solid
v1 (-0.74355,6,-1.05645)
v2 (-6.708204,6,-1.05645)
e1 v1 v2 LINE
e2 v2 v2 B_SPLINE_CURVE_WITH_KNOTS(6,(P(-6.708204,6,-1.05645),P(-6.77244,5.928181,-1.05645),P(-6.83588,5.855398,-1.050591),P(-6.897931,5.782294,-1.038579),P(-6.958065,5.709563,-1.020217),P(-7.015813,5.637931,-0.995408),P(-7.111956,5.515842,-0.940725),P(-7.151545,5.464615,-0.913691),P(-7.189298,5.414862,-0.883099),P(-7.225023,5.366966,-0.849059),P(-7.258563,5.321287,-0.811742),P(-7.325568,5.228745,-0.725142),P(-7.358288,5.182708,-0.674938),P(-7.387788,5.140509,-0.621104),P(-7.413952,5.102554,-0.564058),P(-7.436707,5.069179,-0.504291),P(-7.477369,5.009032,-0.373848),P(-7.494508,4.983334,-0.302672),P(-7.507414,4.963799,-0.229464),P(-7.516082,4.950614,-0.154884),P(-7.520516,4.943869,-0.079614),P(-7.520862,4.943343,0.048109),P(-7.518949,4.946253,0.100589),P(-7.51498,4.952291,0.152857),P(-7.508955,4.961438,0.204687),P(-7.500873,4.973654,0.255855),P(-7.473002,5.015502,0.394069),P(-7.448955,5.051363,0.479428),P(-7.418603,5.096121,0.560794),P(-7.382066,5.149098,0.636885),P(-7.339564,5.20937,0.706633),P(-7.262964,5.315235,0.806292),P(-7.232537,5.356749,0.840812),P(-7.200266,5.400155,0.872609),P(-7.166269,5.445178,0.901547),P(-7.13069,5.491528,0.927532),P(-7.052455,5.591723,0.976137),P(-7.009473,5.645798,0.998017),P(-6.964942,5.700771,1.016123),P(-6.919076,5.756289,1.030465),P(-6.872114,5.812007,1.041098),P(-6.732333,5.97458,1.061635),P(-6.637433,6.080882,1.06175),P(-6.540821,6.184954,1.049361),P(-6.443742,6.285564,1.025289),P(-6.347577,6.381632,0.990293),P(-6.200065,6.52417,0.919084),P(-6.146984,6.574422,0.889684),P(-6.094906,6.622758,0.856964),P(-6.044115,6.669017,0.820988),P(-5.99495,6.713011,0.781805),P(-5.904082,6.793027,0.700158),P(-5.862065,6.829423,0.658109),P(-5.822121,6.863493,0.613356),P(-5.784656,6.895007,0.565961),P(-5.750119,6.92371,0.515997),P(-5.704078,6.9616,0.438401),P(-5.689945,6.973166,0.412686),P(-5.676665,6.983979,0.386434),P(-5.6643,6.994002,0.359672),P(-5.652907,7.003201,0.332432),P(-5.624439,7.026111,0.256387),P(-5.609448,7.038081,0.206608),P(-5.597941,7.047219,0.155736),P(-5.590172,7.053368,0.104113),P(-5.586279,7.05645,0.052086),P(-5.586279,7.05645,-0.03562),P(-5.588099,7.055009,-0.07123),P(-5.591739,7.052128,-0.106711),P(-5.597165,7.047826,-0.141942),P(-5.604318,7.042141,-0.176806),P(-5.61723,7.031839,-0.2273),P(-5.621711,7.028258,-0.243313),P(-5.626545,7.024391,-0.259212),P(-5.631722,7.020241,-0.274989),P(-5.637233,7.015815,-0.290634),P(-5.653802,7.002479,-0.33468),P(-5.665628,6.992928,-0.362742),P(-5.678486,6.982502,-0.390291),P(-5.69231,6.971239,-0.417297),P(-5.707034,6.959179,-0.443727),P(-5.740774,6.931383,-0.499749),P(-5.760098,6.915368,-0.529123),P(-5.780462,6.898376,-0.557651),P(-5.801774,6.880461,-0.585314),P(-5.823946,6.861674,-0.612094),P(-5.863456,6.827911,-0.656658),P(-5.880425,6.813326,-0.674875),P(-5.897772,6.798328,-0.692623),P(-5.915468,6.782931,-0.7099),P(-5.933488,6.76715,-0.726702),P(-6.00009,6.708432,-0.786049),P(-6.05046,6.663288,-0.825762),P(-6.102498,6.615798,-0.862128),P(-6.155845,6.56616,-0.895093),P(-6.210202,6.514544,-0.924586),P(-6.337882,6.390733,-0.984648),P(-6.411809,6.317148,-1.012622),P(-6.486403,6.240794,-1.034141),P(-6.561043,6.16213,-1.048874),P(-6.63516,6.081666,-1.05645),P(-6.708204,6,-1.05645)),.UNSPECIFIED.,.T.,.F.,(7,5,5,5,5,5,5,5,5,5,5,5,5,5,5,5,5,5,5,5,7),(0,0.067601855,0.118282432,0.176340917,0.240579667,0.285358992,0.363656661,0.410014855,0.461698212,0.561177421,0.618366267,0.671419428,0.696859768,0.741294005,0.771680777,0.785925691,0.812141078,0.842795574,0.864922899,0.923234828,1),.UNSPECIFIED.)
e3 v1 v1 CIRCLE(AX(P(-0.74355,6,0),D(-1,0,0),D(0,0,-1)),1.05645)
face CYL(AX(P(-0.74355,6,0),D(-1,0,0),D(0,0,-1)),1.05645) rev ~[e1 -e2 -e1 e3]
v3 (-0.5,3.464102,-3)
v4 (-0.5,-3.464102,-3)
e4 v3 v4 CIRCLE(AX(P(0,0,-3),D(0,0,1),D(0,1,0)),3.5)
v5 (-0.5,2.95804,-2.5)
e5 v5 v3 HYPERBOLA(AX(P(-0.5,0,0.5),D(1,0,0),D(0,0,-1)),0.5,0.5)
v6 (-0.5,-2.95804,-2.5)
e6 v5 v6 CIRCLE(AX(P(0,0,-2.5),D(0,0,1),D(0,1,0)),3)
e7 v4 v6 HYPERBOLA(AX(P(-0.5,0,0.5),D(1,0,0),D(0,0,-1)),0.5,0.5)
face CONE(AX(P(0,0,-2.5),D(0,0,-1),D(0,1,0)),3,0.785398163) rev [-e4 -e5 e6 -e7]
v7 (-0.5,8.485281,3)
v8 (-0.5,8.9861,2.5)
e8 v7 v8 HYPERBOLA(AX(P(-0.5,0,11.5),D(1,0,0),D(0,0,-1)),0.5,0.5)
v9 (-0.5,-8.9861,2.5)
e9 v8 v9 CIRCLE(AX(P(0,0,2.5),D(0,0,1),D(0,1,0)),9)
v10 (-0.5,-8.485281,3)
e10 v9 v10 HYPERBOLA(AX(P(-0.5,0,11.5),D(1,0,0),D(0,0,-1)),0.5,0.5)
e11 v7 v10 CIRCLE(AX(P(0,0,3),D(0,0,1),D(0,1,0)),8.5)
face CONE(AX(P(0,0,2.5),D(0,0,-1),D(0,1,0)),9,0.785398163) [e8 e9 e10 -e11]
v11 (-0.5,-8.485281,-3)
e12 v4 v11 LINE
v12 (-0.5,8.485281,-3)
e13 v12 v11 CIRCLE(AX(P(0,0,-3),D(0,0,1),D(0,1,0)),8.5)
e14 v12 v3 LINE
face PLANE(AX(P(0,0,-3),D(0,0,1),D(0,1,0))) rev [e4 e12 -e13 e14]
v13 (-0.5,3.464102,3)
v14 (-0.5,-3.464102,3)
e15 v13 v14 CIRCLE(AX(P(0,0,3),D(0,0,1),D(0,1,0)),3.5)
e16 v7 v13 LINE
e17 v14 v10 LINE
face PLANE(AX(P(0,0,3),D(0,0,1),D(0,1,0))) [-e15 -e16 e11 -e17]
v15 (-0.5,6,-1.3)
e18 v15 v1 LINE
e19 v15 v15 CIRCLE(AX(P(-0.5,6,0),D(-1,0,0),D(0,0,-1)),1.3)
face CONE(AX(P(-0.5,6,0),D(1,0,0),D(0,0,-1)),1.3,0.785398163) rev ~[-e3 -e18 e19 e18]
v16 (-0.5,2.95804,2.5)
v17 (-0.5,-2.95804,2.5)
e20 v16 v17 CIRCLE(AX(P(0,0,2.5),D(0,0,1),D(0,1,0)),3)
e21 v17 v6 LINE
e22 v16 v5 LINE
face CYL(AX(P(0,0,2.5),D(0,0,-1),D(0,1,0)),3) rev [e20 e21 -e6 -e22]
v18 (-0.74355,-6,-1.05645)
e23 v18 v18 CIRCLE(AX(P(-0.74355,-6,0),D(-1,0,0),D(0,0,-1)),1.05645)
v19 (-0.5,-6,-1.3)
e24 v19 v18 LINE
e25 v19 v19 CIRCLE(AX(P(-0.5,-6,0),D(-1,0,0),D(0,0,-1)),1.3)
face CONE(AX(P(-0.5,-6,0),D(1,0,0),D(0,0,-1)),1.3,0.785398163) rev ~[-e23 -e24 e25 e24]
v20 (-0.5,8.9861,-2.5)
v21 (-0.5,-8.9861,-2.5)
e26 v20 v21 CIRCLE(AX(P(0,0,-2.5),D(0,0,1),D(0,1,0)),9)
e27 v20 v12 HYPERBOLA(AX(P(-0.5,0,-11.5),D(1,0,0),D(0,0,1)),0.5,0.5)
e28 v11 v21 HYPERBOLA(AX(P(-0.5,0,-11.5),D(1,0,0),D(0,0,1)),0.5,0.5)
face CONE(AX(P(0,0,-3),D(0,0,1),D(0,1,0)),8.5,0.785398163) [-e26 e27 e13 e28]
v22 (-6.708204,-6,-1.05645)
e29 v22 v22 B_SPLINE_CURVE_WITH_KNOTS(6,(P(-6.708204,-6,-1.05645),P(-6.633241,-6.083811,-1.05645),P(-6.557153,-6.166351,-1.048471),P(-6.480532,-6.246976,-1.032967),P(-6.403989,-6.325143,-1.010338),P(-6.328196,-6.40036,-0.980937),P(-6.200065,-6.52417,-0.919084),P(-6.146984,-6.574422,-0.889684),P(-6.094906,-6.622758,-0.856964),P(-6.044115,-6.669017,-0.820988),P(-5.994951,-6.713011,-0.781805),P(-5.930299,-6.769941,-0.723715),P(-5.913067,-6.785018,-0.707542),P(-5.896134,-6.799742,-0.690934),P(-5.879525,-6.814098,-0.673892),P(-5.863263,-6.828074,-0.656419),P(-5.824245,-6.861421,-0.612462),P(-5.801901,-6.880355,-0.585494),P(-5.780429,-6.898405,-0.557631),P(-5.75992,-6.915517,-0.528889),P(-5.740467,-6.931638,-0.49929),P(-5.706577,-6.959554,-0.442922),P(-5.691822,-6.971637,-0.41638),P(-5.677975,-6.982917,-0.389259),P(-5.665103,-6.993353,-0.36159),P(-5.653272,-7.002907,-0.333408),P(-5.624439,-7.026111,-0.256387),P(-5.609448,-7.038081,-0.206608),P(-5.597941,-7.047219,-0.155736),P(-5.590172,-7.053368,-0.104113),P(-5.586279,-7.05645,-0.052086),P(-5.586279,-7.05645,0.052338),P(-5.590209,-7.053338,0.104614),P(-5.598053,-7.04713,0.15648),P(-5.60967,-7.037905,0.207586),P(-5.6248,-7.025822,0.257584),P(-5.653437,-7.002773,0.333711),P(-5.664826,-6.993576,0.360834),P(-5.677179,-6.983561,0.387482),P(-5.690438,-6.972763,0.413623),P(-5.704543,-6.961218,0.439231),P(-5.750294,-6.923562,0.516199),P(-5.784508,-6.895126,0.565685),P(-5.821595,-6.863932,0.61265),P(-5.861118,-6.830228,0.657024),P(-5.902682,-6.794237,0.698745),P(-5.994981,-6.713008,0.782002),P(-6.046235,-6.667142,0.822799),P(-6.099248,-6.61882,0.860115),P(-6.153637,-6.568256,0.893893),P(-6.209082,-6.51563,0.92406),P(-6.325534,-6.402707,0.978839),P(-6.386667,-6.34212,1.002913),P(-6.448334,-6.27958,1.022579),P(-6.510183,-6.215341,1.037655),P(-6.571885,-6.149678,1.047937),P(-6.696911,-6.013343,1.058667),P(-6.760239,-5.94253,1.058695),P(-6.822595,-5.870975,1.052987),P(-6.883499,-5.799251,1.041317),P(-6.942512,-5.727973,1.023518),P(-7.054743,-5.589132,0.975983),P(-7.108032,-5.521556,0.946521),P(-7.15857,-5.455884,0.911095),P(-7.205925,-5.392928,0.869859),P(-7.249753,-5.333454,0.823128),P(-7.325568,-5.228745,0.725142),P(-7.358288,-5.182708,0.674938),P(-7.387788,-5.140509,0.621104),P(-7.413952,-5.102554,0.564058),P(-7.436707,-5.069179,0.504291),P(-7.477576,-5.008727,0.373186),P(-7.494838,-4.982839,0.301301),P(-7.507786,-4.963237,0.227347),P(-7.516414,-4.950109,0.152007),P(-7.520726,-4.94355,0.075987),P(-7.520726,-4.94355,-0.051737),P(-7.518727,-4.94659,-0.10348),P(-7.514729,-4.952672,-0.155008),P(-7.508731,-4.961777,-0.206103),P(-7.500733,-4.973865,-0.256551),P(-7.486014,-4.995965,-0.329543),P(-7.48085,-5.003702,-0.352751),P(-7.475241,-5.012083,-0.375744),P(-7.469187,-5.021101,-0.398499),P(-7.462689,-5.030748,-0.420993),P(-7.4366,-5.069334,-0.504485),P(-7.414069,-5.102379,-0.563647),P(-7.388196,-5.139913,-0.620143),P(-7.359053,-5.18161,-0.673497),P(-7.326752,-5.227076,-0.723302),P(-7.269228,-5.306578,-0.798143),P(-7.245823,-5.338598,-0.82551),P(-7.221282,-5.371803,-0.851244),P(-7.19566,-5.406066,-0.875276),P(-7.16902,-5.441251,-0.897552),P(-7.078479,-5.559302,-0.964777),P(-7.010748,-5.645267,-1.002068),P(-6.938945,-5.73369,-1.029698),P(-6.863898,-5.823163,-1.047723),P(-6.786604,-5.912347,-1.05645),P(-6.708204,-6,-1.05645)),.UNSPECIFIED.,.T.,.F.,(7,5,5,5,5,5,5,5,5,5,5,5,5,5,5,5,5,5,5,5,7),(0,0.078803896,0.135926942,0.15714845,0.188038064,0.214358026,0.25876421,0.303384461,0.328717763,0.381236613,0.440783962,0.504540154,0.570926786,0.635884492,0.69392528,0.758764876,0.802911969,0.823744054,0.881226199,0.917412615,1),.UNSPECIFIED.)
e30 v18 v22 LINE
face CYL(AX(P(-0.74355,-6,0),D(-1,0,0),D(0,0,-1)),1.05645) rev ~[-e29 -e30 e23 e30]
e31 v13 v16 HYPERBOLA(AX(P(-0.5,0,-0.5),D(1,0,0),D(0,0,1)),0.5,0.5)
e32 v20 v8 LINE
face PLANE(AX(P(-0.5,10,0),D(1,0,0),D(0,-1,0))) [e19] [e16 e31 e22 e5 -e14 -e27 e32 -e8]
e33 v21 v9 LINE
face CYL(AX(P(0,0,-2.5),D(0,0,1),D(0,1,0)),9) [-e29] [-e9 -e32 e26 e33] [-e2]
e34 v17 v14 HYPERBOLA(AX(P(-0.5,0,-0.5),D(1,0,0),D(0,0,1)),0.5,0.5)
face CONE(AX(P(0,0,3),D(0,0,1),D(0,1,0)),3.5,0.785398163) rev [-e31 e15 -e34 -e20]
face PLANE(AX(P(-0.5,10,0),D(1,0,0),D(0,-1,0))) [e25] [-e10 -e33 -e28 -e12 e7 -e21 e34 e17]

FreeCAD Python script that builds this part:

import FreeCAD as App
import Part
import Sketcher

V = App.Vector
Q = App.Units.Quantity

doc = App.newDocument("Part")
params = doc.addObject("Spreadsheet::Sheet", "Params")
for row, (alias, value) in enumerate([
    ("sketch1_width", "5 mm"),
    ("revolution_angle", "180 deg"),
    ("sketch2_width", "1 mm"),
    ("sketch2_height", "20 mm"),
    ("pocket1_length", "6 mm"),
    ("hole_diameter", "2.1129 mm"),
    ("hole_depth", "9 mm"),
    ("hole_csink_diameter", "2.6 mm"),
    ("hole2_diameter", "2.1129 mm"),
    ("hole2_depth", "9 mm"),
    ("hole2_csink_diameter", "2.6 mm"),
], start=1):
    params.set(f"A{row}", alias)
    params.set(f"B{row}", "=" + value)
    params.setAlias(f"B{row}", alias)

body = doc.addObject("PartDesign::Body", "Body")

# Sketch on YZ plane
sketch1 = body.newObject("Sketcher::SketchObject", "Sketch")
sketch1.AttachmentSupport = (doc.getObject("YZ_Plane"), [""])
sketch1.MapMode = "FlatFace"
sketch1.addGeometry([
    Part.LineSegment(V(9, 2.5, 0), V(8.5, 3, 0)),  # 0
    Part.LineSegment(V(8.5, 3, 0), V(3.5, 3, 0)),  # 1
    Part.LineSegment(V(3.5, 3, 0), V(3, 2.5, 0)),  # 2
    Part.LineSegment(V(3, 2.5, 0), V(3, -2.5, 0)),  # 3
    Part.LineSegment(V(3, -2.5, 0), V(3.5, -3, 0)),  # 4
    Part.LineSegment(V(3.5, -3, 0), V(8.5, -3, 0)),  # 5
    Part.LineSegment(V(8.5, -3, 0), V(9, -2.5, 0)),  # 6
    Part.LineSegment(V(9, -2.5, 0), V(9, 2.5, 0)),  # 7
], False)
sketch1.addConstraint([
    Sketcher.Constraint("Coincident", 0, 2, 1, 1),
    Sketcher.Constraint("Coincident", 1, 2, 2, 1),
    Sketcher.Constraint("Coincident", 2, 2, 3, 1),
    Sketcher.Constraint("Coincident", 3, 2, 4, 1),
    Sketcher.Constraint("Coincident", 4, 2, 5, 1),
    Sketcher.Constraint("Coincident", 5, 2, 6, 1),
    Sketcher.Constraint("Coincident", 6, 2, 7, 1),
    Sketcher.Constraint("Coincident", 7, 2, 0, 1),
    Sketcher.Constraint("Horizontal", 1),
    Sketcher.Constraint("Vertical", 3),
    Sketcher.Constraint("Horizontal", 5),
    Sketcher.Constraint("Vertical", 7),
    Sketcher.Constraint("Symmetric", 1, 2, 4, 2, -1),
    Sketcher.Constraint("Perpendicular", 0, 2),
    Sketcher.Constraint("Perpendicular", 2, 4),
    Sketcher.Constraint("Perpendicular", 4, 6),
    Sketcher.Constraint("Horizontal", 3, 2, 6, 2),
    Sketcher.Constraint("Horizontal", 2, 2, 7, 2),
    Sketcher.Constraint("Vertical", 0, 2, 5, 2),
    Sketcher.Constraint("Equal", 5, 3),
    Sketcher.Constraint("DistanceX", 1, 2, 1, 1, Q("5 mm")),
    Sketcher.Constraint("DistanceY", -1, 1, 0, 2, Q("3 mm")),
    Sketcher.Constraint("DistanceX", -1, 1, 2, 2, Q("3 mm")),
])
sketch1.setExpression("Constraints[20]", "Params.sketch1_width")
revolution = body.newObject("PartDesign::Revolution", "Revolution")
revolution.Profile = sketch1
revolution.ReferenceAxis = (sketch1, ["V_Axis"])
revolution.setExpression("Angle", "Params.revolution_angle")

# Sketch on XY plane
sketch2 = body.newObject("Sketcher::SketchObject", "Sketch001")
sketch2.AttachmentSupport = (doc.getObject("XY_Plane"), [""])
sketch2.MapMode = "FlatFace"
sketch2.addGeometry([
    Part.LineSegment(V(-0.5, 10, 0), V(-0.5, -10, 0)),
    Part.LineSegment(V(-0.5, -10, 0), V(0.5, -10, 0)),
    Part.LineSegment(V(0.5, -10, 0), V(0.5, 10, 0)),
    Part.LineSegment(V(0.5, 10, 0), V(-0.5, 10, 0)),
], False)
sketch2.addConstraint([
    Sketcher.Constraint("Coincident", 0, 2, 1, 1),
    Sketcher.Constraint("Coincident", 1, 2, 2, 1),
    Sketcher.Constraint("Coincident", 2, 2, 3, 1),
    Sketcher.Constraint("Coincident", 3, 2, 0, 1),
    Sketcher.Constraint("Vertical", 0),
    Sketcher.Constraint("Horizontal", 1),
    Sketcher.Constraint("Vertical", 2),
    Sketcher.Constraint("Horizontal", 3),
    Sketcher.Constraint("Symmetric", 0, 2, 2, 2, -1, 1),
    Sketcher.Constraint("DistanceX", 1, 1, 1, 2, Q("1 mm")),
    Sketcher.Constraint("DistanceY", 0, 2, 0, 1, Q("20 mm")),
])
sketch2.setExpression("Constraints[9]", "Params.sketch2_width")
sketch2.setExpression("Constraints[10]", "Params.sketch2_height")
pocket1 = body.newObject("PartDesign::Pocket", "Pocket")
pocket1.Profile = sketch2
pocket1.setExpression("Length", "Params.pocket1_length")
pocket1.Midplane = True

# Sketch on YZ plane
sketch3 = body.newObject("Sketcher::SketchObject", "Sketch002")
sketch3.AttachmentSupport = (doc.getObject("YZ_Plane"), [""])
sketch3.MapMode = "FlatFace"
sketch3.AttachmentOffset = App.Placement(V(0, 0, -0.5), App.Rotation())
sketch3.addGeometry(Part.Circle(V(-6, 0, 0), V(0, 0, 1), 1.1), False)
sketch3.addConstraint([
    Sketcher.Constraint("PointOnObject", 0, 3, -1),
    Sketcher.Constraint("Diameter", 0, Q("2.113 mm")),
    Sketcher.Constraint("DistanceX", 0, 3, -1, 1, Q("6 mm")),
])
doc.recompute()
hole = body.newObject("PartDesign::Hole", "Hole")
hole.Profile = sketch3
hole.ThreadType = "None"
hole.setExpression("Diameter", "Params.hole_diameter")
hole.DepthType = "Dimension"
hole.setExpression("Depth", "Params.hole_depth")
hole.DrillPoint = "Flat"
hole.HoleCutType = "Countersink"
hole.setExpression("HoleCutDiameter", "Params.hole_csink_diameter")
hole.HoleCutCountersinkAngle = 90

# Sketch on YZ plane
sketch4 = body.newObject("Sketcher::SketchObject", "Sketch003")
sketch4.AttachmentSupport = (doc.getObject("YZ_Plane"), [""])
sketch4.MapMode = "FlatFace"
sketch4.AttachmentOffset = App.Placement(V(0, 0, -0.5), App.Rotation())
sketch4.addGeometry(Part.Circle(V(6, 0, 0), V(0, 0, 1), 1.1), False)
sketch4.addConstraint([
    Sketcher.Constraint("PointOnObject", 0, 3, -1),
    Sketcher.Constraint("Diameter", 0, Q("2.113 mm")),
    Sketcher.Constraint("DistanceX", -1, 1, 0, 3, Q("6 mm")),
])
doc.recompute()
hole2 = body.newObject("PartDesign::Hole", "Hole001")
hole2.Profile = sketch4
hole2.ThreadType = "None"
hole2.setExpression("Diameter", "Params.hole2_diameter")
hole2.DepthType = "Dimension"
hole2.setExpression("Depth", "Params.hole2_depth")
hole2.DrillPoint = "Flat"
hole2.HoleCutType = "Countersink"
hole2.setExpression("HoleCutDiameter", "Params.hole2_csink_diameter")
hole2.HoleCutCountersinkAngle = 90

doc.recompute()
